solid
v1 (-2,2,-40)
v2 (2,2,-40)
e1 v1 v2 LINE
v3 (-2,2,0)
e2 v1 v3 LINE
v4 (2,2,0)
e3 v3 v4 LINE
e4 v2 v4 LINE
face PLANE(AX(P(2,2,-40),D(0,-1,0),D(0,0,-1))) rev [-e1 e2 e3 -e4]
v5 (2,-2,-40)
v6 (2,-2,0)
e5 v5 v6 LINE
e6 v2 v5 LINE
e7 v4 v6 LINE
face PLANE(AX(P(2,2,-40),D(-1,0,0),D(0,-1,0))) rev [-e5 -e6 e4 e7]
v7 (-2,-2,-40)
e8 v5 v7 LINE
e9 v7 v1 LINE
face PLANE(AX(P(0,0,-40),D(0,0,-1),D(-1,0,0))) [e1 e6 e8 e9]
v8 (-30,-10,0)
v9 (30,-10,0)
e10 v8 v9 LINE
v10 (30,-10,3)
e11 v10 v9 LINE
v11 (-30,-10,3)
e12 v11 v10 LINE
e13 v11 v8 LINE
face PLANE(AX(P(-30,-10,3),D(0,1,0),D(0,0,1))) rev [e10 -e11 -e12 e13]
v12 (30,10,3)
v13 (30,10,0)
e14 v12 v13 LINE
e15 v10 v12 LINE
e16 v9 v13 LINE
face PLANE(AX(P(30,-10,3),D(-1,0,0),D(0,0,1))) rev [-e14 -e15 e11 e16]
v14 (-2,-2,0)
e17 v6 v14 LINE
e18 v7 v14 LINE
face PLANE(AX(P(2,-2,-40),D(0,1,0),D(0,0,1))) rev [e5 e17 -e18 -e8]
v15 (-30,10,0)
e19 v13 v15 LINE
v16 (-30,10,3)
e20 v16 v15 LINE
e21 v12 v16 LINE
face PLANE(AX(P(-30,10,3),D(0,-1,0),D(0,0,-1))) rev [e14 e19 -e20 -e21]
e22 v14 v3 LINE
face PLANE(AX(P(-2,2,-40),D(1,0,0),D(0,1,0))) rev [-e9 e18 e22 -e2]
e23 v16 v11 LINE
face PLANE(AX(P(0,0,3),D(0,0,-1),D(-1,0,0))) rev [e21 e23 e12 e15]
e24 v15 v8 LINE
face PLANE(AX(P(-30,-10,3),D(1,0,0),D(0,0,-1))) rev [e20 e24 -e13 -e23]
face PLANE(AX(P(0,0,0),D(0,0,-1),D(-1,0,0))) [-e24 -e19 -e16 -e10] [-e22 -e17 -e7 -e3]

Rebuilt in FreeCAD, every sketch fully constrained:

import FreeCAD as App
import Part
import Sketcher

V = App.Vector
Q = App.Units.Quantity

doc = App.newDocument("Part")
body = doc.addObject("PartDesign::Body", "Body")

# Sketch on XY plane
sketch1 = doc.addObject("Sketcher::SketchObject", "Sketch")
body.addObject(sketch1)
sketch1.AttachmentSupport = (doc.XY_Plane, [""])
sketch1.MapMode = "FlatFace"
sketch1.addGeometry(Part.LineSegment(V(-30, 10, 0), V(-30, -10, 0)), False)
sketch1.addGeometry(Part.LineSegment(V(-30, -10, 0), V(30, -10, 0)), False)
sketch1.addGeometry(Part.LineSegment(V(30, -10, 0), V(30, 10, 0)), False)
sketch1.addGeometry(Part.LineSegment(V(30, 10, 0), V(-30, 10, 0)), False)
sketch1.addConstraint(Sketcher.Constraint("Coincident", 0, 2, 1, 1))
sketch1.addConstraint(Sketcher.Constraint("Coincident", 1, 2, 2, 1))
sketch1.addConstraint(Sketcher.Constraint("Coincident", 2, 2, 3, 1))
sketch1.addConstraint(Sketcher.Constraint("Coincident", 3, 2, 0, 1))
sketch1.addConstraint(Sketcher.Constraint("Vertical", 0))
sketch1.addConstraint(Sketcher.Constraint("Horizontal", 1))
sketch1.addConstraint(Sketcher.Constraint("Vertical", 2))
sketch1.addConstraint(Sketcher.Constraint("Horizontal", 3))
sketch1.addConstraint(Sketcher.Constraint("Symmetric", 0, 2, 2, 2, -1, 1))
sketch1.addConstraint(Sketcher.Constraint("DistanceX", 1, 1, 1, 2, Q("60 mm")))
sketch1.addConstraint(Sketcher.Constraint("DistanceY", 0, 2, 0, 1, Q("20 mm")))
pad1 = doc.addObject("PartDesign::Pad", "Pad")
body.addObject(pad1)
pad1.Profile = sketch1
pad1.Length = 3

# Sketch on XY plane
sketch2 = doc.addObject("Sketcher::SketchObject", "Sketch001")
body.addObject(sketch2)
sketch2.AttachmentSupport = (doc.XY_Plane, [""])
sketch2.MapMode = "FlatFace"
sketch2.addGeometry(Part.LineSegment(V(2, 2, 0), V(2, -2, 0)), False)
sketch2.addGeometry(Part.LineSegment(V(2, -2, 0), V(-2, -2, 0)), False)
sketch2.addGeometry(Part.LineSegment(V(-2, -2, 0), V(-2, 2, 0)), False)
sketch2.addGeometry(Part.LineSegment(V(-2, 2, 0), V(2, 2, 0)), False)
sketch2.addConstraint(Sketcher.Constraint("Coincident", 0, 2, 1, 1))
sketch2.addConstraint(Sketcher.Constraint("Coincident", 1, 2, 2, 1))
sketch2.addConstraint(Sketcher.Constraint("Coincident", 2, 2, 3, 1))
sketch2.addConstraint(Sketcher.Constraint("Coincident", 3, 2, 0, 1))
sketch2.addConstraint(Sketcher.Constraint("Vertical", 0))
sketch2.addConstraint(Sketcher.Constraint("Horizontal", 1))
sketch2.addConstraint(Sketcher.Constraint("Vertical", 2))
sketch2.addConstraint(Sketcher.Constraint("Horizontal", 3))
sketch2.addConstraint(Sketcher.Constraint("Symmetric", 0, 2, 2, 2, -1, 1))
sketch2.addConstraint(Sketcher.Constraint("Equal", 3, 0))
sketch2.addConstraint(Sketcher.Constraint("DistanceX", 1, 2, 1, 1, Q("4 mm")))
pad2 = doc.addObject("PartDesign::Pad", "Pad001")
body.addObject(pad2)
pad2.Profile = sketch2
pad2.Length = 40
pad2.Reversed = True

doc.recompute()
